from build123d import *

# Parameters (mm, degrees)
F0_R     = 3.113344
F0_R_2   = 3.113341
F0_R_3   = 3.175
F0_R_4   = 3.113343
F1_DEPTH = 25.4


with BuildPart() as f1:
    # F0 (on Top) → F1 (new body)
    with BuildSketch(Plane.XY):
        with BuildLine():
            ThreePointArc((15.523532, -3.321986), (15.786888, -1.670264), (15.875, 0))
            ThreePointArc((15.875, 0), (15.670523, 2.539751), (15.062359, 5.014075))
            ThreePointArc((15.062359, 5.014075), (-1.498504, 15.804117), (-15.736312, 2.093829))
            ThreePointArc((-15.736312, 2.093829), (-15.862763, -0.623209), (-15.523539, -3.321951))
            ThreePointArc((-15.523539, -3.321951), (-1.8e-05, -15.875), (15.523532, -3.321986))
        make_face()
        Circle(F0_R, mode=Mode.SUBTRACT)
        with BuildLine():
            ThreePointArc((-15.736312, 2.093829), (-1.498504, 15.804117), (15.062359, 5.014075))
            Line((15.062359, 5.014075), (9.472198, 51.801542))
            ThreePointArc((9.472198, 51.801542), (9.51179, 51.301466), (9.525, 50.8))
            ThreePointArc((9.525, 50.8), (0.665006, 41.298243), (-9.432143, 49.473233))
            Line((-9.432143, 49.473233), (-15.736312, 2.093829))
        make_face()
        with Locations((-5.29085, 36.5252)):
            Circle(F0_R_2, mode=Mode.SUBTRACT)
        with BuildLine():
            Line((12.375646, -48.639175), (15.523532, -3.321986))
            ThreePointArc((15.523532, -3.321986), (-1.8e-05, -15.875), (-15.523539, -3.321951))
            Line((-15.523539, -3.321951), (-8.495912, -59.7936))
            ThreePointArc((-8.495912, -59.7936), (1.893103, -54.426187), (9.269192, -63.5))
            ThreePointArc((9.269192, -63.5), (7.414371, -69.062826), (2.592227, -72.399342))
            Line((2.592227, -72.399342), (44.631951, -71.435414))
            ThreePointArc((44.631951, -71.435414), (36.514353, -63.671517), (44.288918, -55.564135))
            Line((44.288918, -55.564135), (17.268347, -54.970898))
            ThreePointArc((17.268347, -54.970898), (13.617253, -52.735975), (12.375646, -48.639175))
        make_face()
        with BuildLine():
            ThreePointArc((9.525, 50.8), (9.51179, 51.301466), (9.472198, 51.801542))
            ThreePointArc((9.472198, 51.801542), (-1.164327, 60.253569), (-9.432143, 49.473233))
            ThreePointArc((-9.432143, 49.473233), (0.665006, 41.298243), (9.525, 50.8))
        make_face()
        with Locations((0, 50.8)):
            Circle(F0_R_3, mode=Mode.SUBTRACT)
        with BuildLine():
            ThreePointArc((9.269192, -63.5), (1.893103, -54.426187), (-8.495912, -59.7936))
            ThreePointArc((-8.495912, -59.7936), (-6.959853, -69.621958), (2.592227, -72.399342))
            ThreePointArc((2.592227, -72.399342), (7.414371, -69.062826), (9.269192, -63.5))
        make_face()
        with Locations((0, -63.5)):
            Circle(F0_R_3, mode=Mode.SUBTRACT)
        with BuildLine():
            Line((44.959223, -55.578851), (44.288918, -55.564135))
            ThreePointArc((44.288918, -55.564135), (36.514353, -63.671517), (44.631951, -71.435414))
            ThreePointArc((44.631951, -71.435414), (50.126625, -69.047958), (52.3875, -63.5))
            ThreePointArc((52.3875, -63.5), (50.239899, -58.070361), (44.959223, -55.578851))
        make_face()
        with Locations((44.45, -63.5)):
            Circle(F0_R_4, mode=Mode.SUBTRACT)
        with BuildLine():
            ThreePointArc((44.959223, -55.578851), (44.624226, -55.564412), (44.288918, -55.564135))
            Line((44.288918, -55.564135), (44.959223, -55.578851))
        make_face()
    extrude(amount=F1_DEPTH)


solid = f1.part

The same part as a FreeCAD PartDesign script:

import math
import FreeCAD as App
import Part
import Sketcher

V = App.Vector
Q = App.Units.Quantity

doc = App.newDocument("Part")
body = doc.addObject("PartDesign::Body", "Body")

sketch1 = body.newObject("Sketcher::SketchObject", "Sketch")
sketch1.AttachmentSupport = (doc.getObject("XY_Plane"), [""])
sketch1.MapMode = "FlatFace"
sketch1.addGeometry(Part.ArcOfCircle(Part.Circle(V(0, 0, 0), V(0, 0, 1), 15.9), math.radians(-12.08), math.radians(0)), False)
sketch1.addGeometry(Part.ArcOfCircle(Part.Circle(V(0, 0, 0), V(0, 0, 1), 15.9), math.radians(0), math.radians(18.41)), False)
sketch1.addGeometry(Part.LineSegment(V(15.1, 5, 0), V(9.5, 51.8, 0)), False)
sketch1.addGeometry(Part.ArcOfCircle(Part.Circle(V(0, 50.8, 0), V(0, 0, 1), 9.5), math.radians(6), math.radians(188)), False)
sketch1.addGeometry(Part.LineSegment(V(-9.4, 49.5, 0), V(-15.7, 2.1, 0)), False)
sketch1.addGeometry(Part.ArcOfCircle(Part.Circle(V(0, 0, 0), V(0, 0, 1), 15.9), math.radians(172.42), math.radians(192.08)), False)
sketch1.addGeometry(Part.LineSegment(V(-15.5, -3.3, 0), V(-8.5, -59.8, 0)), False)
sketch1.addGeometry(Part.ArcOfCircle(Part.Circle(V(0, -63.5, 0), V(0, 0, 1), 9.3), math.radians(156), math.radians(286)), False)
sketch1.addGeometry(Part.LineSegment(V(2.6, -72.4, 0), V(44.6, -71.4, 0)), False)
sketch1.addGeometry(Part.ArcOfCircle(Part.Circle(V(44.5, -63.5, 0), V(0, 0, 1), 7.9), math.radians(-89), math.radians(0)), False)
sketch1.addGeometry(Part.ArcOfCircle(Part.Circle(V(44.5, -63.5, 0), V(0, 0, 1), 7.9), math.radians(0), math.radians(86)), False)
sketch1.addGeometry(Part.ArcOfCircle(Part.Circle(V(44.5, -63.5, 0), V(0, 0, 1), 7.9), math.radians(86.32), math.radians(91.16)), False)
sketch1.addGeometry(Part.LineSegment(V(44.3, -55.6, 0), V(17.3, -55, 0)), False)
sketch1.addGeometry(Part.ArcOfCircle(Part.Circle(V(18.4, -49.1, 0), V(0, 0, 1), 6), math.radians(176), math.radians(259)), False)
sketch1.addGeometry(Part.LineSegment(V(12.4, -48.6, 0), V(15.5, -3.3, 0)), False)
sketch1.addGeometry(Part.Circle(V(0, -63.5, 0), V(0, 0, 1), 3.2), False)
sketch1.addGeometry(Part.Circle(V(44.5, -63.5, 0), V(0, 0, 1), 3.1), False)
sketch1.addGeometry(Part.Circle(V(0, 0, 0), V(0, 0, 1), 3.1), False)
sketch1.addGeometry(Part.Circle(V(-5.3, 36.5, 0), V(0, 0, 1), 3.1), False)
sketch1.addGeometry(Part.Circle(V(0, 50.8, 0), V(0, 0, 1), 3.2), False)
sketch1.addConstraint(Sketcher.Constraint("Tangent", 0, 2, 1, 1))
sketch1.addConstraint(Sketcher.Constraint("Coincident", 1, 2, 2, 1))
sketch1.addConstraint(Sketcher.Constraint("Coincident", 2, 2, 3, 1))
sketch1.addConstraint(Sketcher.Constraint("Coincident", 3, 2, 4, 1))
sketch1.addConstraint(Sketcher.Constraint("Tangent", 4, 2, 5, 1))
sketch1.addConstraint(Sketcher.Constraint("Coincident", 5, 2, 6, 1))
sketch1.addConstraint(Sketcher.Constraint("Coincident", 6, 2, 7, 1))
sketch1.addConstraint(Sketcher.Constraint("Coincident", 7, 2, 8, 1))
sketch1.addConstraint(Sketcher.Constraint("Tangent", 8, 2, 9, 1))
sketch1.addConstraint(Sketcher.Constraint("Tangent", 9, 2, 10, 1))
sketch1.addConstraint(Sketcher.Constraint("Tangent", 10, 2, 11, 1))
sketch1.addConstraint(Sketcher.Constraint("Coincident", 11, 2, 12, 1))
sketch1.addConstraint(Sketcher.Constraint("Coincident", 12, 2, 13, 2))
sketch1.addConstraint(Sketcher.Constraint("Tangent", 13, 1, 14, 1))
sketch1.addConstraint(Sketcher.Constraint("Coincident", 14, 2, 0, 1))
sketch1.addConstraint(Sketcher.Constraint("Coincident", 17, 3, -1, 1))
sketch1.addConstraint(Sketcher.Constraint("Coincident", 15, 3, 7, 3))
sketch1.addConstraint(Sketcher.Constraint("Coincident", 16, 3, 9, 3))
sketch1.addConstraint(Sketcher.Constraint("Coincident", 19, 3, 3, 3))
sketch1.addConstraint(Sketcher.Constraint("Equal", 9, 10))
sketch1.addConstraint(Sketcher.Constraint("Equal", 16, 17))
sketch1.addConstraint(Sketcher.Constraint("Equal", 16, 18))
sketch1.addConstraint(Sketcher.Constraint("Equal", 15, 19))
sketch1.addConstraint(Sketcher.Constraint("Symmetric", 1, 3, 5, 3, -1, 1))
sketch1.addConstraint(Sketcher.Constraint("PointOnObject", 3, 3, -2))
sketch1.addConstraint(Sketcher.Constraint("PointOnObject", 5, 3, -1))
sketch1.addConstraint(Sketcher.Constraint("PointOnObject", 7, 3, -2))
sketch1.addConstraint(Sketcher.Constraint("PointOnObject", 0, 2, -1))
sketch1.addConstraint(Sketcher.Constraint("Horizontal", 7, 3, 9, 3))
sketch1.addConstraint(Sketcher.Constraint("Horizontal", 16, 3, 9, 2))
sketch1.addConstraint(Sketcher.Constraint("Diameter", 15, Q("0.25 in")))
sketch1.addConstraint(Sketcher.Constraint("DistanceY", -1, 1, 3, 3, Q("2 in")))
sketch1.addConstraint(Sketcher.Constraint("Radius", 3, Q("0.375 in")))
sketch1.addConstraint(Sketcher.Constraint("Radius", 9, Q("0.3125 in")))
sketch1.addConstraint(Sketcher.Constraint("DistanceY", 7, 3, -1, 1, Q("2.5 in")))
sketch1.addConstraint(Sketcher.Constraint("DistanceX", -1, 1, 9, 3, Q("1.75 in")))
sketch1.addConstraint(Sketcher.Constraint("Diameter", 17, 6.226688))
sketch1.addConstraint(Sketcher.Constraint("DistanceY", -1, 1, 18, 3, Q("1.438 in")))
sketch1.addConstraint(Sketcher.Constraint("DistanceX", -1, 1, 0, 2, Q("0.625 in")))
sketch1.addConstraint(Sketcher.Constraint("Radius", 13, 6.01812))
sketch1.addConstraint(Sketcher.Constraint("Radius", 0, 15.875092))
sketch1.addConstraint(Sketcher.Constraint("Radius", 1, 15.874975))
sketch1.addConstraint(Sketcher.Constraint("Radius", 5, 15.874977))
sketch1.addConstraint(Sketcher.Constraint("Radius", 7, 9.269192))
sketch1.addConstraint(Sketcher.Constraint("Radius", 11, 7.937043))
sketch1.addConstraint(Sketcher.Constraint("DistanceX", 7, 2, 12, 2, Q("0.5778 in")))
sketch1.addConstraint(Sketcher.Constraint("DistanceX", -1, 1, 13, 3, 18.3793))
sketch1.addConstraint(Sketcher.Constraint("DistanceY", 6, 2, -1, 1, 59.7936))
sketch1.addConstraint(Sketcher.Constraint("DistanceX", 3, 3, 2, 2, 9.472198))
sketch1.addConstraint(Sketcher.Constraint("DistanceX", 11, 2, 11, 3, 0.161099))
sketch1.addConstraint(Sketcher.Constraint("DistanceY", 6, 2, 12, 2, 4.822702))
sketch1.addConstraint(Sketcher.Constraint("DistanceX", 13, 1, 12, 2, 4.892701))
sketch1.addConstraint(Sketcher.Constraint("Distance", 2, 47.120239))
sketch1.addConstraint(Sketcher.Constraint("Distance", 4, 47.796971))
sketch1.addConstraint(Sketcher.Constraint("Distance", 14, 45.426389))
sketch1.addConstraint(Sketcher.Constraint("DistanceX", 18, 3, -1, 1, 5.29085))
sketch1.addConstraint(Sketcher.Constraint("DistanceX", 5, 2, -1, 1, 15.523539))
sketch1.addConstraint(Sketcher.Constraint("DistanceY", 10, 2, -1, 1, 55.578851))
pad1 = body.newObject("PartDesign::Pad", "Pad")
pad1.Profile = sketch1
pad1.Length = Q("1 in")

doc.recompute()
